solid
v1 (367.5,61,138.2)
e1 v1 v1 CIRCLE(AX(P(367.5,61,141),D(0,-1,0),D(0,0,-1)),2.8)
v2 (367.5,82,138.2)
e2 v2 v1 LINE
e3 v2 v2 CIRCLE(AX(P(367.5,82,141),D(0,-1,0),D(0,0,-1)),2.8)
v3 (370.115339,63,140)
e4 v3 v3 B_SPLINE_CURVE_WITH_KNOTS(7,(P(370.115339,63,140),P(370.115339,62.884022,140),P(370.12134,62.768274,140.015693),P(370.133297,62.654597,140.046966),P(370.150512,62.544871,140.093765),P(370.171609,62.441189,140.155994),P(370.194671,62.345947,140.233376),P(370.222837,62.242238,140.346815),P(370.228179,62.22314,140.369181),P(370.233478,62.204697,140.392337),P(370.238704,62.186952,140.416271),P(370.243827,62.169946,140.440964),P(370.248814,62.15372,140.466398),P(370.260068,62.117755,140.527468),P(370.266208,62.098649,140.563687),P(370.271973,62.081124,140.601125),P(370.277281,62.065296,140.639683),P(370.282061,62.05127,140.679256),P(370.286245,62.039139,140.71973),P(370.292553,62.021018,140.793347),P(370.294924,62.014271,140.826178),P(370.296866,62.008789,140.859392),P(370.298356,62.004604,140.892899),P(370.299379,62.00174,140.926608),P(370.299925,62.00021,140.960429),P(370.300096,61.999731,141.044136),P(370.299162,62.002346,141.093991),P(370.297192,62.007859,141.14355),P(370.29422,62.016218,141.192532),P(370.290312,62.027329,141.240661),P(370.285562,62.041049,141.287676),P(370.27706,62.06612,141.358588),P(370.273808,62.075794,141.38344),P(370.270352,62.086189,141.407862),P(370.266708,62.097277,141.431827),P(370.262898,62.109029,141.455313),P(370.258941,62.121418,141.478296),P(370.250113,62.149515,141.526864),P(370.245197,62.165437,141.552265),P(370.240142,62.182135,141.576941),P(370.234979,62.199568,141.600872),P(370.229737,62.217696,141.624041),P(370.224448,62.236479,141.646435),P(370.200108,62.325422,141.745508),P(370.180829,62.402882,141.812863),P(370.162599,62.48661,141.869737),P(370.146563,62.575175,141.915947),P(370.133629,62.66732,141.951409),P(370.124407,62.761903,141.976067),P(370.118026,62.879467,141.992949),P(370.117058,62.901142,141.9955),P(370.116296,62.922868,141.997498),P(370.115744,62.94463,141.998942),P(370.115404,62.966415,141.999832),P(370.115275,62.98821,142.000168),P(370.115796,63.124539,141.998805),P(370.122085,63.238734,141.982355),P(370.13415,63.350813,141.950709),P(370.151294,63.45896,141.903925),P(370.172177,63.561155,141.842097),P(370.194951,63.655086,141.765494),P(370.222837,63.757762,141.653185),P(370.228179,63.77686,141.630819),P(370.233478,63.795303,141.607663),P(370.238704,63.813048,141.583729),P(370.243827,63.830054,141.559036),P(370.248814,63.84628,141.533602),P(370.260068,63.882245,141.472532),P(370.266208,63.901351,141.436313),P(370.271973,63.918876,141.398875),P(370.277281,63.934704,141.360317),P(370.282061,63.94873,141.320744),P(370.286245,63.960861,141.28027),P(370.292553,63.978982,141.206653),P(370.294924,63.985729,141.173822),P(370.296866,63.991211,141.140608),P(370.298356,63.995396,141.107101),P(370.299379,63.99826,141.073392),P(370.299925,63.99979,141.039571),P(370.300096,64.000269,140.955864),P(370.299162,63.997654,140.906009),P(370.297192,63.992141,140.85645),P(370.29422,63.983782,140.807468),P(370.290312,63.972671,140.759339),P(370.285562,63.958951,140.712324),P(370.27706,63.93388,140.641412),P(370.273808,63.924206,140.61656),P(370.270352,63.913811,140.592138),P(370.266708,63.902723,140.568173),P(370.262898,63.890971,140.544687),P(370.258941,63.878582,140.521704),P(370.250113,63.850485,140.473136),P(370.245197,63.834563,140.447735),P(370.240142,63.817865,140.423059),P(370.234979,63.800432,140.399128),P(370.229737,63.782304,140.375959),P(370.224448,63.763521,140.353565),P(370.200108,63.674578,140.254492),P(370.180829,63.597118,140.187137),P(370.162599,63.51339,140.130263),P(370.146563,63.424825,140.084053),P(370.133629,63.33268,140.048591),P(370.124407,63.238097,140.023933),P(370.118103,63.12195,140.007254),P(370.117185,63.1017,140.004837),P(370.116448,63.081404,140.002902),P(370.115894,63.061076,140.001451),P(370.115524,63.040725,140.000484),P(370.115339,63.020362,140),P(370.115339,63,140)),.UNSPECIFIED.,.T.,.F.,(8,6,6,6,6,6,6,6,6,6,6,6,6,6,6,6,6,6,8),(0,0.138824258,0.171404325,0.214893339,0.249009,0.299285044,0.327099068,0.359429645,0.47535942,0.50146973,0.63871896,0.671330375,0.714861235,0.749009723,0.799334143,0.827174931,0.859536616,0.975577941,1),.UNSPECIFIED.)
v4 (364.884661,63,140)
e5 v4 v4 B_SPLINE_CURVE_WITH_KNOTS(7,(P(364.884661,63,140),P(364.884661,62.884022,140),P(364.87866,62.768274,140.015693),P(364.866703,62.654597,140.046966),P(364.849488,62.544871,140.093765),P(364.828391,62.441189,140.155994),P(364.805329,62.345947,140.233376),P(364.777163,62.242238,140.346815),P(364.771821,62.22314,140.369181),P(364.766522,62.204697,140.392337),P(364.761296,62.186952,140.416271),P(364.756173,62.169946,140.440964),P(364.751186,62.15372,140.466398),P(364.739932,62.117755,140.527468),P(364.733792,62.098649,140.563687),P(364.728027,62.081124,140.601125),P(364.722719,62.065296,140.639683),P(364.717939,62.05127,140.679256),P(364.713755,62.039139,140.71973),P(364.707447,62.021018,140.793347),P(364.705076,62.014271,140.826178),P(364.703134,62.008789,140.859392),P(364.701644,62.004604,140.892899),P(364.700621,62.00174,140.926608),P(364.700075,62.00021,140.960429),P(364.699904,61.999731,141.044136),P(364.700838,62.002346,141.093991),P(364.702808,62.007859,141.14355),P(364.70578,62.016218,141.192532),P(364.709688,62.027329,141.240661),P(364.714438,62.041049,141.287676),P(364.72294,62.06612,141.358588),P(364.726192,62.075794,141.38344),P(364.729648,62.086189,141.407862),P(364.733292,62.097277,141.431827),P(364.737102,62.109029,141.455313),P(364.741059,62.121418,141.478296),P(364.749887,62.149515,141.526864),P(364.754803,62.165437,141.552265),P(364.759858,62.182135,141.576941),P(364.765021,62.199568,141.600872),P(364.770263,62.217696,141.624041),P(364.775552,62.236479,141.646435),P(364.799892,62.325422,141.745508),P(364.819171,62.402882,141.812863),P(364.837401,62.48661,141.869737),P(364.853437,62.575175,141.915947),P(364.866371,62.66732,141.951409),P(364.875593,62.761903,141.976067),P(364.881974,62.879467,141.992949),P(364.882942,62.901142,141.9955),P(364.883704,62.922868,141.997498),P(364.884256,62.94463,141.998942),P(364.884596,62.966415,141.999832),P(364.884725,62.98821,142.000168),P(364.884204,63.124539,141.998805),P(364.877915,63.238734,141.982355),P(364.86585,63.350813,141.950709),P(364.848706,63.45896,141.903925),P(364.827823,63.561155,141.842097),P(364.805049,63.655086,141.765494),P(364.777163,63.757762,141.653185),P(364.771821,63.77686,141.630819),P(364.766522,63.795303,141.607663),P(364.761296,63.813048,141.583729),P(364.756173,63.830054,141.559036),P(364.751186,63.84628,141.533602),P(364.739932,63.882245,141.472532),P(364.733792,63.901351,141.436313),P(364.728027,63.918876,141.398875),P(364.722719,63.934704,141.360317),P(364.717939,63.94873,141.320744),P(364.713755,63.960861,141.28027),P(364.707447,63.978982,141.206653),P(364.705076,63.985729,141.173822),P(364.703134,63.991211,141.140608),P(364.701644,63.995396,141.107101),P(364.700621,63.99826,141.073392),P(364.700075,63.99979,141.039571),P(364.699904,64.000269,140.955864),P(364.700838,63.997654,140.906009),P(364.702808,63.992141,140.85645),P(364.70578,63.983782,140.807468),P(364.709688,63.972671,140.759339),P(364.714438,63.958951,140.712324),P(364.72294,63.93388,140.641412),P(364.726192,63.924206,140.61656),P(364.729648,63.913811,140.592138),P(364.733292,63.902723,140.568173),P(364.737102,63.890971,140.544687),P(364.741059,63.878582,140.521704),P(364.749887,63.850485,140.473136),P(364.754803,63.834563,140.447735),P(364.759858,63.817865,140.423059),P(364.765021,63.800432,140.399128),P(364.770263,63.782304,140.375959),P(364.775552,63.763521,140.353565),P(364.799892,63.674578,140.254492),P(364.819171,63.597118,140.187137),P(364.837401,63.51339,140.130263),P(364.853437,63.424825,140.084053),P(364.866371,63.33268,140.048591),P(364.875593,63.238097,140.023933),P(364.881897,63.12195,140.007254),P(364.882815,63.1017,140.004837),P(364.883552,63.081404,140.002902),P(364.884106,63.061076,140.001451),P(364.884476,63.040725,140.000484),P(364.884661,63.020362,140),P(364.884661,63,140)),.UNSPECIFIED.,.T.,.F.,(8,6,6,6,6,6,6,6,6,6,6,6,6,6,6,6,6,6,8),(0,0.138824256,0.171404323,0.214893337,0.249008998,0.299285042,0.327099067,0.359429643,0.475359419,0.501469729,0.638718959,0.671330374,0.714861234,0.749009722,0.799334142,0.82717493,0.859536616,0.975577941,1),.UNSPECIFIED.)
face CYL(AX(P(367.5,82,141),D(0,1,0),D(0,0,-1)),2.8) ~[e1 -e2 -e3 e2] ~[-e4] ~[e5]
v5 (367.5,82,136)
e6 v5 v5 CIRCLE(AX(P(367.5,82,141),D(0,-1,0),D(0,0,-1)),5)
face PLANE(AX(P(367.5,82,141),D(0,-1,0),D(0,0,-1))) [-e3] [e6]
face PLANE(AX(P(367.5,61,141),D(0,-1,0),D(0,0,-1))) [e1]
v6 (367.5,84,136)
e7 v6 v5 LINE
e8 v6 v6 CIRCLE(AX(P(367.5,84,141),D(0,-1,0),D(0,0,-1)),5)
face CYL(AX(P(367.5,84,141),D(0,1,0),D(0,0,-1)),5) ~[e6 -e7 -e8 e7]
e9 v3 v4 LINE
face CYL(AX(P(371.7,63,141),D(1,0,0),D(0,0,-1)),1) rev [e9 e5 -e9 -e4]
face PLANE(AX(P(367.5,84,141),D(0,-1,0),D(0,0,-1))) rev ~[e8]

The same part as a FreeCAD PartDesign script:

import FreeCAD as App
import Part
import Sketcher
Q = App.Units.Quantity

doc = App.newDocument("Part")
params = doc.addObject("Spreadsheet::Sheet", "Params")
for row, (alias, value) in enumerate([
    ("sketch1_diameter", "2 mm"),
    ("pad1_length", "10 mm"),
    ("sketch2_diameter", "5.6 mm"),
    ("pad2_length", "21 mm"),
    ("sketch3_diameter", "10 mm"),
    ("pad3_length", "2 mm"),
], start=1):
    params.set(f"A{row}", alias)
    params.set(f"B{row}", "=" + value)
    params.setAlias(f"B{row}", alias)

body = doc.addObject("PartDesign::Body", "Body")

# Sketch on XZ plane
sketch1 = body.newObject("Sketcher::SketchObject", "Sketch")
sketch1.AttachmentSupport = (doc.getObject("XZ_Plane"), [""])
sketch1.MapMode = "FlatFace"
sketch1.AttachmentOffset = App.Placement(App.Vector(0, 0, -4.2), App.Rotation())
sketch1.addGeometry(Part.Circle(App.Vector(0, 21, 0), App.Vector(0, 0, 1), 1), False)
sketch1.addConstraint([
    Sketcher.Constraint("PointOnObject", 0, 3, -2),
    Sketcher.Constraint("Diameter", 0, Q("2 mm")),
    Sketcher.Constraint("DistanceY", -1, 1, 0, 3, Q("21 mm")),
])
sketch1.setExpression("Constraints[1]", "Params.sketch1_diameter")
pad1 = body.newObject("PartDesign::Pad", "Pad")
pad1.Profile = sketch1
pad1.setExpression("Length", "Params.pad1_length")
body2 = doc.addObject("PartDesign::Body", "Body001")

# Sketch on XY plane
sketch2 = body2.newObject("Sketcher::SketchObject", "Sketch001")
sketch2.AttachmentSupport = (doc.getObject("XY_Plane001"), [""])
sketch2.MapMode = "FlatFace"
sketch2.AttachmentOffset = App.Placement(App.Vector(0, 0, 2), App.Rotation())
sketch2.addGeometry(Part.Circle(App.Vector(0, 0, 0), App.Vector(0, 0, 1), 2.8), False)
sketch2.addConstraint([
    Sketcher.Constraint("Coincident", 0, 3, -1, 1),
    Sketcher.Constraint("Diameter", 0, Q("5.6 mm")),
])
sketch2.setExpression("Constraints[1]", "Params.sketch2_diameter")
pad2 = body2.newObject("PartDesign::Pad", "Pad001")
pad2.Profile = sketch2
pad2.setExpression("Length", "Params.pad2_length")
body3 = doc.addObject("PartDesign::Body", "Body002")

# Sketch on XY plane
sketch3 = body3.newObject("Sketcher::SketchObject", "Sketch002")
sketch3.AttachmentSupport = (doc.getObject("XY_Plane002"), [""])
sketch3.MapMode = "FlatFace"
sketch3.addGeometry(Part.Circle(App.Vector(0, 0, 0), App.Vector(0, 0, 1), 5), False)
sketch3.addConstraint([
    Sketcher.Constraint("Coincident", 0, 3, -1, 1),
    Sketcher.Constraint("Diameter", 0, Q("10 mm")),
])
sketch3.setExpression("Constraints[1]", "Params.sketch3_diameter")
pad3 = body3.newObject("PartDesign::Pad", "Pad002")
pad3.Profile = sketch3
pad3.setExpression("Length", "Params.pad3_length")
doc.recompute()

boolean = body3.newObject("PartDesign::Boolean", "Boolean")
boolean.Type = "Fuse"
boolean.addObjects([body2])
doc.recompute()

boolean2 = body3.newObject("PartDesign::Boolean", "Boolean001")
boolean2.Type = "Cut"
boolean2.addObjects([body])
body4 = doc.addObject("PartDesign::Body", "Body003")
doc.recompute()

body3.Placement = App.Placement(App.Vector(0, 0, 0), App.Rotation(App.Vector(0, 1, 0), 90))
boolean3 = body4.newObject("PartDesign::Boolean", "Boolean002")
boolean3.Type = "Fuse"
boolean3.addObjects([body3])
body5 = doc.addObject("PartDesign::Body", "Body004")
doc.recompute()

body4.Placement = App.Placement(App.Vector(367.5, 84, 141), App.Rotation(App.Vector(0, 0, 1), 270))
boolean4 = body5.newObject("PartDesign::Boolean", "Boolean003")
boolean4.Type = "Fuse"
boolean4.addObjects([body4])

doc.recompute()
